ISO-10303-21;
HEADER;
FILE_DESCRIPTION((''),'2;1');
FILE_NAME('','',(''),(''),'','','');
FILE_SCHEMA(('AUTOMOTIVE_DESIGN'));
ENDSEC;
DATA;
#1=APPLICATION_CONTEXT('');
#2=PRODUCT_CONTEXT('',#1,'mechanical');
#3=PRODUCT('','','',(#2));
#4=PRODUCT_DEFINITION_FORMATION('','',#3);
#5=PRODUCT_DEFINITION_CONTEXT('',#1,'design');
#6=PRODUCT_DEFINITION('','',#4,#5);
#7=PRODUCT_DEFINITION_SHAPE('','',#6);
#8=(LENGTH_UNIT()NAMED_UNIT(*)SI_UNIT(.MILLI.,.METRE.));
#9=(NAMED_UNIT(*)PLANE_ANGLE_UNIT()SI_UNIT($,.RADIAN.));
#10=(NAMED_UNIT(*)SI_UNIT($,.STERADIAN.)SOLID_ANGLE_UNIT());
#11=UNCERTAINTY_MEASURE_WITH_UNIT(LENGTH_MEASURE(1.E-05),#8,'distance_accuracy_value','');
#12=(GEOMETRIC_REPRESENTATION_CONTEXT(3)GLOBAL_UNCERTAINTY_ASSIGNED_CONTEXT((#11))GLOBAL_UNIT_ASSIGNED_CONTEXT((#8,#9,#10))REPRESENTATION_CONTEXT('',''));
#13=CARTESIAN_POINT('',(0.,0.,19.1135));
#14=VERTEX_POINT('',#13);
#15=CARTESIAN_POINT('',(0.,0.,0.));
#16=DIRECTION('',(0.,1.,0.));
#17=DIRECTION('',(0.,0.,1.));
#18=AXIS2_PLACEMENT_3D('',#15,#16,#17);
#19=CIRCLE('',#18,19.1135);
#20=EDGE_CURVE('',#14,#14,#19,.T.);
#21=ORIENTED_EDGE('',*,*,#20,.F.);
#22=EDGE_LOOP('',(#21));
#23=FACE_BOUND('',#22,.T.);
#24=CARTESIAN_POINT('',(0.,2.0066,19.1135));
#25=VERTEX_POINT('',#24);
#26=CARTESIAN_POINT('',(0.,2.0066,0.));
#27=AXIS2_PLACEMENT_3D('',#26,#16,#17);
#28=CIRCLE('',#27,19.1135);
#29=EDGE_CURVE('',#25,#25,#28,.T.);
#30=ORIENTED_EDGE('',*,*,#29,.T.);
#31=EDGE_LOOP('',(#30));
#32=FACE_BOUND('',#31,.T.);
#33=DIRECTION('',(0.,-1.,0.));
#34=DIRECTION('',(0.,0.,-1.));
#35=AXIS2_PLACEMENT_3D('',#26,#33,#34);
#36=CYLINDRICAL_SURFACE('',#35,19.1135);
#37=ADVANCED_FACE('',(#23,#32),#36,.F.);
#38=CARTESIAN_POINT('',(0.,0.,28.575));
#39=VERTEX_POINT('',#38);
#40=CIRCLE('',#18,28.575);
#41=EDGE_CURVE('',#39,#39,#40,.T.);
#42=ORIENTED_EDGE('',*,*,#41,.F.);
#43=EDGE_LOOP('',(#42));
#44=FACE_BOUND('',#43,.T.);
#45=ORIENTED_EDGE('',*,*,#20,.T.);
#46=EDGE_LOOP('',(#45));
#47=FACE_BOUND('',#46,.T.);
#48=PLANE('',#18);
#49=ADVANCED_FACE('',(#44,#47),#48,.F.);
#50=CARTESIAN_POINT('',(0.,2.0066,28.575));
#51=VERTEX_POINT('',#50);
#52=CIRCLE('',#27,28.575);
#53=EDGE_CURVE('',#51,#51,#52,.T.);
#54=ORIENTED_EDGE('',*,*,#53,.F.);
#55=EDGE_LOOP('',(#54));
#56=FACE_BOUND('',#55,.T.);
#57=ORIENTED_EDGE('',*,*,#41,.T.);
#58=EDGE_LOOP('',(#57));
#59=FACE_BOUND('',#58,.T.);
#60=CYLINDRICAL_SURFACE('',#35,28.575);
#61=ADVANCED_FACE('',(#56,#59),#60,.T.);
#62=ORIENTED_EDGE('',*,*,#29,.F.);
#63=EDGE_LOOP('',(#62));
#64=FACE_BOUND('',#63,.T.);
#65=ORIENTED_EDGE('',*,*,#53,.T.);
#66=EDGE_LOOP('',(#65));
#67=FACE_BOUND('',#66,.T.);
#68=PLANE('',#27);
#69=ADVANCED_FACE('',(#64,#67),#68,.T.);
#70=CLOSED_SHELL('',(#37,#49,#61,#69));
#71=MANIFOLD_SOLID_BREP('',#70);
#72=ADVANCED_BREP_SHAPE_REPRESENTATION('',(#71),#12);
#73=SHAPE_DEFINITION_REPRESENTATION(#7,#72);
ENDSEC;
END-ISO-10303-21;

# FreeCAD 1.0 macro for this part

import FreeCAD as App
import Part
import Sketcher

V = App.Vector
Q = App.Units.Quantity

doc = App.newDocument("Part")
params = doc.addObject("Spreadsheet::Sheet", "Params")
for row, (alias, value) in enumerate([
    ("sketch1_diameter", "2.25 in"),
    ("sketch1_diameter2", "1.505 in"),
    ("pad1_length", "0.079 in"),
], start=1):
    params.set(f"A{row}", alias)
    params.set(f"B{row}", "=" + value)
    params.setAlias(f"B{row}", alias)

body = doc.addObject("PartDesign::Body", "Body")

# Sketch on XZ plane
sketch1 = body.newObject("Sketcher::SketchObject", "Sketch")
sketch1.AttachmentSupport = (doc.getObject("XZ_Plane"), [""])
sketch1.MapMode = "FlatFace"
sketch1.addGeometry([
    Part.Circle(V(0, 0, 0), V(0, 0, 1), 28.575),
    Part.Circle(V(0, 0, 0), V(0, 0, 1), 19.1135),
], False)
sketch1.addConstraint([
    Sketcher.Constraint("Coincident", 0, 3, -1, 1),
    Sketcher.Constraint("Coincident", 1, 3, -1, 1),
    Sketcher.Constraint("Diameter", 0, Q("2.25 in")),
    Sketcher.Constraint("Diameter", 1, Q("1.505 in")),
])
sketch1.setExpression("Constraints[2]", "Params.sketch1_diameter")
sketch1.setExpression("Constraints[3]", "Params.sketch1_diameter2")
pad1 = body.newObject("PartDesign::Pad", "Pad")
pad1.Profile = sketch1
pad1.setExpression("Length", "Params.pad1_length")
pad1.Reversed = True

doc.recompute()
